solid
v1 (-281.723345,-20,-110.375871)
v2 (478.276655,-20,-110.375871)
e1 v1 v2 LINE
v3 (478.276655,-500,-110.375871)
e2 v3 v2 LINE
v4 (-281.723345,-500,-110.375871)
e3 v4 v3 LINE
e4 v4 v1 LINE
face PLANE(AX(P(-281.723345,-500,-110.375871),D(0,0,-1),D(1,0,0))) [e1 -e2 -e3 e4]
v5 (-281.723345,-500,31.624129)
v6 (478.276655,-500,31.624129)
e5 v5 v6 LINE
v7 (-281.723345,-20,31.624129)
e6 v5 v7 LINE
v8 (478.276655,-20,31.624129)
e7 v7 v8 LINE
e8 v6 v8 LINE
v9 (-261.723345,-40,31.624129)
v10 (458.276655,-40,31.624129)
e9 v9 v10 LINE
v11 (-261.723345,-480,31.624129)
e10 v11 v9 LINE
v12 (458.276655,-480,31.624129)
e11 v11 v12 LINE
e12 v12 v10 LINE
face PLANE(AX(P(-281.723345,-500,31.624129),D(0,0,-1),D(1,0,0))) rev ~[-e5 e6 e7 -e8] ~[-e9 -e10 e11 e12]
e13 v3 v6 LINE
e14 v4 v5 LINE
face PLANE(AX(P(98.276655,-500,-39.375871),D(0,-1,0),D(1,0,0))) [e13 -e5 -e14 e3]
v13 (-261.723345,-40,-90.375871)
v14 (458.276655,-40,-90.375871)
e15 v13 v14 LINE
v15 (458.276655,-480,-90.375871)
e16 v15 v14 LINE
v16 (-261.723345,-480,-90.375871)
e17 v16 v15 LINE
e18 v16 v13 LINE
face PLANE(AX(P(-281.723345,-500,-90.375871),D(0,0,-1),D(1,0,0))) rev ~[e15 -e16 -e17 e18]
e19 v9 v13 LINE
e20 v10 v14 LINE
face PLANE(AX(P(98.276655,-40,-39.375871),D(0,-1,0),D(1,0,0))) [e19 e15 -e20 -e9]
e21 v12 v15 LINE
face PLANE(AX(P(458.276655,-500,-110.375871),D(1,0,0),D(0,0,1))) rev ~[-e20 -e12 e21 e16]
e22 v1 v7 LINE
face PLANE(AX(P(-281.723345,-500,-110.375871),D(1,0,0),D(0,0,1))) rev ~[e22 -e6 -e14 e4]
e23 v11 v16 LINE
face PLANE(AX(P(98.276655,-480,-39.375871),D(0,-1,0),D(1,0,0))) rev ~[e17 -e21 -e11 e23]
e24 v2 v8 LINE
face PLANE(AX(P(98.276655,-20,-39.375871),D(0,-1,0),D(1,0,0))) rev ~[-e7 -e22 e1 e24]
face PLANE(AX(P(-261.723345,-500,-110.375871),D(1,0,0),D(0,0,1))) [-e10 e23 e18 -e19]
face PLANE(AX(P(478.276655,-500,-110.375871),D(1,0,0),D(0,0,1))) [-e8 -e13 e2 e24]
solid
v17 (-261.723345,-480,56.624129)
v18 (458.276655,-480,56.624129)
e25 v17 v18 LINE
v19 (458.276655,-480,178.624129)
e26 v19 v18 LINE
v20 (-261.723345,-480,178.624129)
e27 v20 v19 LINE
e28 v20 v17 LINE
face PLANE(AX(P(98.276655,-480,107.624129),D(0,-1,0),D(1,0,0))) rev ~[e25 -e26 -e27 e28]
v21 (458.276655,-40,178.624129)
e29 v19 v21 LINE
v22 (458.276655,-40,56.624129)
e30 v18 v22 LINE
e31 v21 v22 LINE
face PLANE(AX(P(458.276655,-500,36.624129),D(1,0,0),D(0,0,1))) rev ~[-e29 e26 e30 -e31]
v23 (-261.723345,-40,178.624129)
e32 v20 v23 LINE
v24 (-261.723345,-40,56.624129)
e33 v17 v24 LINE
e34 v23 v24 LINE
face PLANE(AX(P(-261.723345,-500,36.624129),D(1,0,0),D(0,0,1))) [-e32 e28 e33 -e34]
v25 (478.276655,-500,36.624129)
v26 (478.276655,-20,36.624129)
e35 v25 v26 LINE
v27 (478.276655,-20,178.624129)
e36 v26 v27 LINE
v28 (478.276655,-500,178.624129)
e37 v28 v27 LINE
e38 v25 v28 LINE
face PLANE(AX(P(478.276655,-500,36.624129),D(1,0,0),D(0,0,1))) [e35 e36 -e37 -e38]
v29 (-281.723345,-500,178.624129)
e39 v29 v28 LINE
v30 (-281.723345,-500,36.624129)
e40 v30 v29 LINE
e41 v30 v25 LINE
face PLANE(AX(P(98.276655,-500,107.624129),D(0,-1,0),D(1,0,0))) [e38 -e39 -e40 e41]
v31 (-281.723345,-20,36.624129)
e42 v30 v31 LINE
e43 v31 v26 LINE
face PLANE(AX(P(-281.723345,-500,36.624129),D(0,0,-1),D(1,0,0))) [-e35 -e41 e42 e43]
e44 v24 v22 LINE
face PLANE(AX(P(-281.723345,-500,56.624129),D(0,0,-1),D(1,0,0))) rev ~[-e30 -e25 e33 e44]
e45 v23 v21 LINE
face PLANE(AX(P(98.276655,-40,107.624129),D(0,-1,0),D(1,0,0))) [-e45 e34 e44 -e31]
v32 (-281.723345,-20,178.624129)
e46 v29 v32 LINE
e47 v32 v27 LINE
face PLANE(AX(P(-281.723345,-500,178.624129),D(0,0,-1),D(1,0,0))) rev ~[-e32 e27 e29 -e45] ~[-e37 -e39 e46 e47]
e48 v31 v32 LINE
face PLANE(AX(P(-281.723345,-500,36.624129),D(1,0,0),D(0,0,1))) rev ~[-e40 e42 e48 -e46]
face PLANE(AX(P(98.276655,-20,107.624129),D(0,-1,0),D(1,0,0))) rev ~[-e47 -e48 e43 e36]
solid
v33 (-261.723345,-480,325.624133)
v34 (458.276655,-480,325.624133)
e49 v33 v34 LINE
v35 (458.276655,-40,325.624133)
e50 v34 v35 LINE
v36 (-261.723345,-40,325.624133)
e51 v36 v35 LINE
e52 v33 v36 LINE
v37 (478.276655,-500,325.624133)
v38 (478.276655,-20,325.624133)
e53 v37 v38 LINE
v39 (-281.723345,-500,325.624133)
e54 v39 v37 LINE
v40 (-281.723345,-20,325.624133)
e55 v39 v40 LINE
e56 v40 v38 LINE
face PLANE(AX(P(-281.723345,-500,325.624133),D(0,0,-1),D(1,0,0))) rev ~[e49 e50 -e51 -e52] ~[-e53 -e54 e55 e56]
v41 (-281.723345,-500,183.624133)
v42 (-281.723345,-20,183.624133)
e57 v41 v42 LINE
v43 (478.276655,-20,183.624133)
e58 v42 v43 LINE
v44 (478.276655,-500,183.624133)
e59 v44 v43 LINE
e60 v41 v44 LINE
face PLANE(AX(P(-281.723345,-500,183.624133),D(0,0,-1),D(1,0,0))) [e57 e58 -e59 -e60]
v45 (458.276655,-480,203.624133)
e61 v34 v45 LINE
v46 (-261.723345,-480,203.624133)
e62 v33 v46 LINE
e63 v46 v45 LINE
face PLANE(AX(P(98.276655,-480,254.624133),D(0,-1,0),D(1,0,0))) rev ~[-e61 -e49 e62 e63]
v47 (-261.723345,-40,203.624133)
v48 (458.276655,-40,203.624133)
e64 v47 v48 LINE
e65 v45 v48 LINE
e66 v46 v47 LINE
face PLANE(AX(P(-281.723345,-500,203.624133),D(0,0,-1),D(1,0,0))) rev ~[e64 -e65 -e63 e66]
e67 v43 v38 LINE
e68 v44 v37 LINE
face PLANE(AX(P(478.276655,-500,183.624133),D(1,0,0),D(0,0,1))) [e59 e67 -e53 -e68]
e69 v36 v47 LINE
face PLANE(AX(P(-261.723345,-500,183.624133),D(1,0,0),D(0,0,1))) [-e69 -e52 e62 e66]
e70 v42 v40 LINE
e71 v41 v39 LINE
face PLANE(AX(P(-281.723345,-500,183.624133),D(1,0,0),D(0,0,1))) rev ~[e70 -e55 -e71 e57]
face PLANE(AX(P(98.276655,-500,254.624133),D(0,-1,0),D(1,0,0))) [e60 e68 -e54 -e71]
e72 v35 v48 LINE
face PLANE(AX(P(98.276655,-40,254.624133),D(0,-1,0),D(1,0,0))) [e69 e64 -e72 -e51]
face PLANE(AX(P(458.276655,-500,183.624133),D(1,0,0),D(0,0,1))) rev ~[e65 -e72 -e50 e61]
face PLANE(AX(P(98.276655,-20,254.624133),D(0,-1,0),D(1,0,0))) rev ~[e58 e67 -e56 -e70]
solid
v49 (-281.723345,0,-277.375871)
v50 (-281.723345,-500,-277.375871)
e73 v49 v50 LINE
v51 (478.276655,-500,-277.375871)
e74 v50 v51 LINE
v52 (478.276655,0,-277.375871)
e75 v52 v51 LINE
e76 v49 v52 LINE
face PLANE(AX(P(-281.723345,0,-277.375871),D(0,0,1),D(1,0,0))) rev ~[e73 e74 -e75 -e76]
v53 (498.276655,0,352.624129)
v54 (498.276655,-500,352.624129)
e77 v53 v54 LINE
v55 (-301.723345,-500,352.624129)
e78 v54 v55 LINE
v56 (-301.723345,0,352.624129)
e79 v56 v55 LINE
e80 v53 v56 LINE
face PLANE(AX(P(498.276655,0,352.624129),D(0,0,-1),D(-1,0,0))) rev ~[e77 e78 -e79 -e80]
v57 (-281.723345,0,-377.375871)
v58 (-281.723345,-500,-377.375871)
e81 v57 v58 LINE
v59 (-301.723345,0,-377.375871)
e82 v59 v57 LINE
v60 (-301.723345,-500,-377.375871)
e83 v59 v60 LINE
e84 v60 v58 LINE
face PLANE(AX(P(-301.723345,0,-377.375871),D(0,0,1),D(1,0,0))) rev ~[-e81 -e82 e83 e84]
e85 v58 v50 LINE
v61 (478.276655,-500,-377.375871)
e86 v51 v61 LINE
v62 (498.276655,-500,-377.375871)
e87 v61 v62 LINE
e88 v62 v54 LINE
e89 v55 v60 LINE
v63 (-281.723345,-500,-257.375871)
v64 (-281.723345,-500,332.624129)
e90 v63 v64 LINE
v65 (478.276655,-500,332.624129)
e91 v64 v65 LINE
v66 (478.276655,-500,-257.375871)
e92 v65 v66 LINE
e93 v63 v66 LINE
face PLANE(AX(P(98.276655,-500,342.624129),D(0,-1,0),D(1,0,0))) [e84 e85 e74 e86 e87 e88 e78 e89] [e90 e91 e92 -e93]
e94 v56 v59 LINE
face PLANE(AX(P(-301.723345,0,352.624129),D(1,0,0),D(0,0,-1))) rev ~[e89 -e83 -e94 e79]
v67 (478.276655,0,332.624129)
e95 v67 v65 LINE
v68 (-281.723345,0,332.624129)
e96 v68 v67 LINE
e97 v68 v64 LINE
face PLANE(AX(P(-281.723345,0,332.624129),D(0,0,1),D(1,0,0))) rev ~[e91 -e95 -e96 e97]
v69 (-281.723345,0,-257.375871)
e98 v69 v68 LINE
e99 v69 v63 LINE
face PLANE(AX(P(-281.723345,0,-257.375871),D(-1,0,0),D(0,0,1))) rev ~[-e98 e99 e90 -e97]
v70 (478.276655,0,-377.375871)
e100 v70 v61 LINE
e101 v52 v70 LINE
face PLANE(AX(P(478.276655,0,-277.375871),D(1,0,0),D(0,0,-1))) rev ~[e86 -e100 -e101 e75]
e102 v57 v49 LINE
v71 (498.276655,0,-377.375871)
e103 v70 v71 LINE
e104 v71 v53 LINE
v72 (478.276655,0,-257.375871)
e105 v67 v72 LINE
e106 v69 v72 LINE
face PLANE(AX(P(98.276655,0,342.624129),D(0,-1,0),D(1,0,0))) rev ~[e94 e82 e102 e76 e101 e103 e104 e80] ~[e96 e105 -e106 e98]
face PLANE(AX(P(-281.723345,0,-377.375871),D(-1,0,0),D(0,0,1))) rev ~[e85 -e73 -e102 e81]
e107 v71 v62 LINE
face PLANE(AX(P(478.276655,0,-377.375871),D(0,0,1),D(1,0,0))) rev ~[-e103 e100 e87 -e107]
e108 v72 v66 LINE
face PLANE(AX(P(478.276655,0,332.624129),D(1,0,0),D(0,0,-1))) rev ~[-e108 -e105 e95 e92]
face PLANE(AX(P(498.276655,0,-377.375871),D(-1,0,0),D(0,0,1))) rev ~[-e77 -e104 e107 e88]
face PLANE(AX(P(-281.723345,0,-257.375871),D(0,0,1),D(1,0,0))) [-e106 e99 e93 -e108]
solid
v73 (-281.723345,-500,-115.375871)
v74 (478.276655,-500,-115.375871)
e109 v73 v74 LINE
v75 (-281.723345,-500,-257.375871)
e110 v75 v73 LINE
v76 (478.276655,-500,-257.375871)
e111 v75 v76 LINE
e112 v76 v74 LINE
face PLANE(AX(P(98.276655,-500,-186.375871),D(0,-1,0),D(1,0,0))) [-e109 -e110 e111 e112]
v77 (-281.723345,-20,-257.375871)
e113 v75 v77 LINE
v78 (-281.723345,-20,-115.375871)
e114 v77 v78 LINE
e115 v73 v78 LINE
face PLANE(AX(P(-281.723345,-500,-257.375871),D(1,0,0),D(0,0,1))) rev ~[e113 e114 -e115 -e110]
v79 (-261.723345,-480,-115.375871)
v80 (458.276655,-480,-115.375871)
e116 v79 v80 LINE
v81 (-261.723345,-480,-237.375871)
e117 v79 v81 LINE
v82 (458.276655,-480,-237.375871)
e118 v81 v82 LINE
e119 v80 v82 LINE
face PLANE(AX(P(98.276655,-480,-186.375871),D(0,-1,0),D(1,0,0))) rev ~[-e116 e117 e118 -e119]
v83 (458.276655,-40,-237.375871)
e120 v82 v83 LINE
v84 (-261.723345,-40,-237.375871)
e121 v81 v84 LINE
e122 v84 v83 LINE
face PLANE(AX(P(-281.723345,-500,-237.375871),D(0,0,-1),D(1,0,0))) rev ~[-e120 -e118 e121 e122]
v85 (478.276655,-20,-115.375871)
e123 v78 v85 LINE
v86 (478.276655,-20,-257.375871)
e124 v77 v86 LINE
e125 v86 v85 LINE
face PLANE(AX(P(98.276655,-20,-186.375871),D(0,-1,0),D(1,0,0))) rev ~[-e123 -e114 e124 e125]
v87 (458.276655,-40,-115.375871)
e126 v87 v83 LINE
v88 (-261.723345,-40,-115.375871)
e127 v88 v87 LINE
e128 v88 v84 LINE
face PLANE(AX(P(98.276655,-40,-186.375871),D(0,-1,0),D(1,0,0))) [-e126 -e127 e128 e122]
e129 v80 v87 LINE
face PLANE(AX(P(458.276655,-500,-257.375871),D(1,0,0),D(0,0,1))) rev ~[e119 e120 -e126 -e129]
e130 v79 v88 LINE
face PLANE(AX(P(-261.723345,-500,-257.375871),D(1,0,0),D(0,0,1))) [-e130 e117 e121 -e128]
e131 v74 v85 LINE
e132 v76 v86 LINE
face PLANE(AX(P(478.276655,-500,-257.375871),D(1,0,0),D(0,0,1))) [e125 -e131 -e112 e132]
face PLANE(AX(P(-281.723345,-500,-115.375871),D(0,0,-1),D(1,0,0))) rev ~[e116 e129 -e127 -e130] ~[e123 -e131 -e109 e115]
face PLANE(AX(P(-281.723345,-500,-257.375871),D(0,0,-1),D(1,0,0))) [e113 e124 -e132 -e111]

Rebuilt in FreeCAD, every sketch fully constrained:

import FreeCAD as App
import Part
import Sketcher
from FreeCAD import Vector


def faces_at(feature, points):
    """Names of the faces that lie closest to the given points."""
    faces = feature.Shape.Faces
    near = lambda p: min(range(len(faces)), key=lambda i: faces[i].distToShape(Part.Vertex(*p))[0])
    return sorted({f"Face{near(p) + 1}" for p in points})


def add_polygon(sketch, points):
    """Adds a closed chain of lines whose ends are joined by coincident constraints."""
    first, n = sketch.GeometryCount, len(points)
    for a, b in zip(points, points[1:] + points[:1]):
        sketch.addGeometry(Part.LineSegment(App.Vector(*a, 0), App.Vector(*b, 0)), False)
    for i in range(n):
        sketch.addConstraint(Sketcher.Constraint("Coincident", first + i, 2, first + (i + 1) % n, 1))

doc = App.newDocument("Part")
body = doc.addObject("PartDesign::Body", "Body")

sketch1 = doc.addObject("Sketcher::SketchObject", "Sketch")
body.addObject(sketch1)
sketch1.AttachmentSupport = (doc.XZ_Plane, [""])
sketch1.MapMode = "FlatFace"
add_polygon(sketch1, [(-302, 353), (-302, -377), (-282, -377), (-282, -277), (478, -277), (478, -377), (498, -377), (498, 353)])
add_polygon(sketch1, [(478, -257), (-282, -257), (-282, 333), (478, 333)])
sketch1.addConstraint([
    Sketcher.Constraint("Vertical", 0),
    Sketcher.Constraint("Horizontal", 1),
    Sketcher.Constraint("Vertical", 2),
    Sketcher.Constraint("Horizontal", 3),
    Sketcher.Constraint("Vertical", 4),
    Sketcher.Constraint("Horizontal", 5),
    Sketcher.Constraint("Vertical", 6),
    Sketcher.Constraint("Horizontal", 7),
    Sketcher.Constraint("Horizontal", 8),
    Sketcher.Constraint("Vertical", 9),
    Sketcher.Constraint("Horizontal", 10),
    Sketcher.Constraint("Vertical", 11),
    Sketcher.Constraint("Horizontal", 1, 2, 4, 2),
    Sketcher.Constraint("Vertical", 2, 2, 8, 2),
    Sketcher.Constraint("Vertical", 4, 2, 10, 2),
    Sketcher.Constraint("Equal", 1, 5),
    Sketcher.Constraint("DistanceX", 1, 1, 1, 2, 20.0),
    Sketcher.Constraint("DistanceX", 3, 1, 3, 2, 760.0),
    Sketcher.Constraint("DistanceY", 0, 2, 0, 1, 730.0),
    Sketcher.Constraint("DistanceY", 2, 1, 2, 2, 100.0),
    Sketcher.Constraint("DistanceY", 9, 1, 9, 2, 590.0),
    Sketcher.Constraint("DistanceY", 2, 2, 8, 2, 20.0),
    Sketcher.Constraint("DistanceY", 0, 2, -1, 1, 377.375871),
    Sketcher.Constraint("DistanceX", 0, 2, -1, 1, 301.723345),
])
pad1 = doc.addObject("PartDesign::Pad", "Pad")
body.addObject(pad1)
pad1.Profile = sketch1
pad1.Length = 500
body2 = doc.addObject("PartDesign::Body", "Body001")

sketch2 = doc.addObject("Sketcher::SketchObject", "Sketch001")
body2.addObject(sketch2)
sketch2.AttachmentSupport = (doc.getObject("XZ_Plane001"), [""])
sketch2.MapMode = "FlatFace"
sketch2.AttachmentOffset = App.Placement(Vector(0, 0, 500), App.Rotation())
add_polygon(sketch2, [(-282, -115), (-282, -257), (478, -257), (478, -115)])
sketch2.addConstraint([
    Sketcher.Constraint("Vertical", 0),
    Sketcher.Constraint("Horizontal", 1),
    Sketcher.Constraint("Vertical", 2),
    Sketcher.Constraint("Horizontal", 3),
    Sketcher.Constraint("DistanceX", 1, 1, 1, 2, 760.0),
    Sketcher.Constraint("DistanceY", 0, 2, 0, 1, 142.0),
    Sketcher.Constraint("DistanceY", 0, 2, -1, 1, 257.375871),
    Sketcher.Constraint("DistanceX", 0, 2, -1, 1, 281.723345),
])
pad2 = doc.addObject("PartDesign::Pad", "Pad001")
body2.addObject(pad2)
pad2.Profile = sketch2
pad2.Length = 480
pad2.Reversed = True
doc.recompute()

thickness = doc.addObject("PartDesign::Thickness", "Thickness")
body2.addObject(thickness)
thickness.Base = (pad2, faces_at(pad2, [(98.277, -260, -115.376)]))
thickness.Value = 20
thickness.Reversed = True
thickness.Join = "Arc"
body3 = doc.addObject("PartDesign::Body", "Body002")

sketch3 = doc.addObject("Sketcher::SketchObject", "Sketch002")
body3.addObject(sketch3)
sketch3.AttachmentSupport = (doc.getObject("XZ_Plane002"), [""])
sketch3.MapMode = "FlatFace"
sketch3.AttachmentOffset = App.Placement(Vector(0, 0, 500), App.Rotation())
add_polygon(sketch3, [(-282, 32), (-282, -110), (478, -110), (478, 32)])
sketch3.addConstraint([
    Sketcher.Constraint("Vertical", 0),
    Sketcher.Constraint("Horizontal", 1),
    Sketcher.Constraint("Vertical", 2),
    Sketcher.Constraint("Horizontal", 3),
    Sketcher.Constraint("DistanceX", 1, 1, 1, 2, 760.0),
    Sketcher.Constraint("DistanceY", 0, 2, 0, 1, 142.0),
    Sketcher.Constraint("DistanceY", 0, 2, -1, 1, 110.375871),
    Sketcher.Constraint("DistanceX", 0, 2, -1, 1, 281.723345),
])
pad3 = doc.addObject("PartDesign::Pad", "Pad002")
body3.addObject(pad3)
pad3.Profile = sketch3
pad3.Length = 480
pad3.Reversed = True
doc.recompute()

thickness2 = doc.addObject("PartDesign::Thickness", "Thickness001")
body3.addObject(thickness2)
thickness2.Base = (pad3, faces_at(pad3, [(98.277, -260, 31.624)]))
thickness2.Value = 20
thickness2.Reversed = True
thickness2.Join = "Arc"
body4 = doc.addObject("PartDesign::Body", "Body003")

sketch4 = doc.addObject("Sketcher::SketchObject", "Sketch003")
body4.addObject(sketch4)
sketch4.AttachmentSupport = (doc.getObject("XZ_Plane003"), [""])
sketch4.MapMode = "FlatFace"
sketch4.AttachmentOffset = App.Placement(Vector(0, 0, 500), App.Rotation())
add_polygon(sketch4, [(-282, 179), (-282, 37), (478, 37), (478, 179)])
sketch4.addConstraint([
    Sketcher.Constraint("Vertical", 0),
    Sketcher.Constraint("Horizontal", 1),
    Sketcher.Constraint("Vertical", 2),
    Sketcher.Constraint("Horizontal", 3),
    Sketcher.Constraint("DistanceX", 1, 1, 1, 2, 760.0),
    Sketcher.Constraint("DistanceY", 0, 2, 0, 1, 142.0),
    Sketcher.Constraint("DistanceY", -1, 1, 0, 2, 36.624129),
    Sketcher.Constraint("DistanceX", 0, 2, -1, 1, 281.723345),
])
pad4 = doc.addObject("PartDesign::Pad", "Pad003")
body4.addObject(pad4)
pad4.Profile = sketch4
pad4.Length = 480
pad4.Reversed = True
doc.recompute()

thickness3 = doc.addObject("PartDesign::Thickness", "Thickness002")
body4.addObject(thickness3)
thickness3.Base = (pad4, faces_at(pad4, [(98.277, -260, 178.624)]))
thickness3.Value = 20
thickness3.Reversed = True
thickness3.Join = "Arc"
body5 = doc.addObject("PartDesign::Body", "Body004")

sketch5 = doc.addObject("Sketcher::SketchObject", "Sketch004")
body5.addObject(sketch5)
sketch5.AttachmentSupport = (doc.getObject("XZ_Plane004"), [""])
sketch5.MapMode = "FlatFace"
sketch5.AttachmentOffset = App.Placement(Vector(0, 0, 500), App.Rotation())
add_polygon(sketch5, [(-282, 326), (-282, 184), (478, 184), (478, 326)])
sketch5.addConstraint([
    Sketcher.Constraint("Vertical", 0),
    Sketcher.Constraint("Horizontal", 1),
    Sketcher.Constraint("Vertical", 2),
    Sketcher.Constraint("Horizontal", 3),
    Sketcher.Constraint("DistanceX", 1, 1, 1, 2, 760.0),
    Sketcher.Constraint("DistanceY", 0, 2, 0, 1, 142.0),
    Sketcher.Constraint("DistanceX", 0, 2, -1, 1, 281.723345),
    Sketcher.Constraint("DistanceY", -1, 1, 0, 2, 183.624133),
])
pad5 = doc.addObject("PartDesign::Pad", "Pad004")
body5.addObject(pad5)
pad5.Profile = sketch5
pad5.Length = 480
pad5.Reversed = True
doc.recompute()

thickness4 = doc.addObject("PartDesign::Thickness", "Thickness003")
body5.addObject(thickness4)
thickness4.Base = (pad5, faces_at(pad5, [(98.277, -260, 325.624)]))
thickness4.Value = 20
thickness4.Reversed = True
thickness4.Join = "Arc"

doc.recompute()
